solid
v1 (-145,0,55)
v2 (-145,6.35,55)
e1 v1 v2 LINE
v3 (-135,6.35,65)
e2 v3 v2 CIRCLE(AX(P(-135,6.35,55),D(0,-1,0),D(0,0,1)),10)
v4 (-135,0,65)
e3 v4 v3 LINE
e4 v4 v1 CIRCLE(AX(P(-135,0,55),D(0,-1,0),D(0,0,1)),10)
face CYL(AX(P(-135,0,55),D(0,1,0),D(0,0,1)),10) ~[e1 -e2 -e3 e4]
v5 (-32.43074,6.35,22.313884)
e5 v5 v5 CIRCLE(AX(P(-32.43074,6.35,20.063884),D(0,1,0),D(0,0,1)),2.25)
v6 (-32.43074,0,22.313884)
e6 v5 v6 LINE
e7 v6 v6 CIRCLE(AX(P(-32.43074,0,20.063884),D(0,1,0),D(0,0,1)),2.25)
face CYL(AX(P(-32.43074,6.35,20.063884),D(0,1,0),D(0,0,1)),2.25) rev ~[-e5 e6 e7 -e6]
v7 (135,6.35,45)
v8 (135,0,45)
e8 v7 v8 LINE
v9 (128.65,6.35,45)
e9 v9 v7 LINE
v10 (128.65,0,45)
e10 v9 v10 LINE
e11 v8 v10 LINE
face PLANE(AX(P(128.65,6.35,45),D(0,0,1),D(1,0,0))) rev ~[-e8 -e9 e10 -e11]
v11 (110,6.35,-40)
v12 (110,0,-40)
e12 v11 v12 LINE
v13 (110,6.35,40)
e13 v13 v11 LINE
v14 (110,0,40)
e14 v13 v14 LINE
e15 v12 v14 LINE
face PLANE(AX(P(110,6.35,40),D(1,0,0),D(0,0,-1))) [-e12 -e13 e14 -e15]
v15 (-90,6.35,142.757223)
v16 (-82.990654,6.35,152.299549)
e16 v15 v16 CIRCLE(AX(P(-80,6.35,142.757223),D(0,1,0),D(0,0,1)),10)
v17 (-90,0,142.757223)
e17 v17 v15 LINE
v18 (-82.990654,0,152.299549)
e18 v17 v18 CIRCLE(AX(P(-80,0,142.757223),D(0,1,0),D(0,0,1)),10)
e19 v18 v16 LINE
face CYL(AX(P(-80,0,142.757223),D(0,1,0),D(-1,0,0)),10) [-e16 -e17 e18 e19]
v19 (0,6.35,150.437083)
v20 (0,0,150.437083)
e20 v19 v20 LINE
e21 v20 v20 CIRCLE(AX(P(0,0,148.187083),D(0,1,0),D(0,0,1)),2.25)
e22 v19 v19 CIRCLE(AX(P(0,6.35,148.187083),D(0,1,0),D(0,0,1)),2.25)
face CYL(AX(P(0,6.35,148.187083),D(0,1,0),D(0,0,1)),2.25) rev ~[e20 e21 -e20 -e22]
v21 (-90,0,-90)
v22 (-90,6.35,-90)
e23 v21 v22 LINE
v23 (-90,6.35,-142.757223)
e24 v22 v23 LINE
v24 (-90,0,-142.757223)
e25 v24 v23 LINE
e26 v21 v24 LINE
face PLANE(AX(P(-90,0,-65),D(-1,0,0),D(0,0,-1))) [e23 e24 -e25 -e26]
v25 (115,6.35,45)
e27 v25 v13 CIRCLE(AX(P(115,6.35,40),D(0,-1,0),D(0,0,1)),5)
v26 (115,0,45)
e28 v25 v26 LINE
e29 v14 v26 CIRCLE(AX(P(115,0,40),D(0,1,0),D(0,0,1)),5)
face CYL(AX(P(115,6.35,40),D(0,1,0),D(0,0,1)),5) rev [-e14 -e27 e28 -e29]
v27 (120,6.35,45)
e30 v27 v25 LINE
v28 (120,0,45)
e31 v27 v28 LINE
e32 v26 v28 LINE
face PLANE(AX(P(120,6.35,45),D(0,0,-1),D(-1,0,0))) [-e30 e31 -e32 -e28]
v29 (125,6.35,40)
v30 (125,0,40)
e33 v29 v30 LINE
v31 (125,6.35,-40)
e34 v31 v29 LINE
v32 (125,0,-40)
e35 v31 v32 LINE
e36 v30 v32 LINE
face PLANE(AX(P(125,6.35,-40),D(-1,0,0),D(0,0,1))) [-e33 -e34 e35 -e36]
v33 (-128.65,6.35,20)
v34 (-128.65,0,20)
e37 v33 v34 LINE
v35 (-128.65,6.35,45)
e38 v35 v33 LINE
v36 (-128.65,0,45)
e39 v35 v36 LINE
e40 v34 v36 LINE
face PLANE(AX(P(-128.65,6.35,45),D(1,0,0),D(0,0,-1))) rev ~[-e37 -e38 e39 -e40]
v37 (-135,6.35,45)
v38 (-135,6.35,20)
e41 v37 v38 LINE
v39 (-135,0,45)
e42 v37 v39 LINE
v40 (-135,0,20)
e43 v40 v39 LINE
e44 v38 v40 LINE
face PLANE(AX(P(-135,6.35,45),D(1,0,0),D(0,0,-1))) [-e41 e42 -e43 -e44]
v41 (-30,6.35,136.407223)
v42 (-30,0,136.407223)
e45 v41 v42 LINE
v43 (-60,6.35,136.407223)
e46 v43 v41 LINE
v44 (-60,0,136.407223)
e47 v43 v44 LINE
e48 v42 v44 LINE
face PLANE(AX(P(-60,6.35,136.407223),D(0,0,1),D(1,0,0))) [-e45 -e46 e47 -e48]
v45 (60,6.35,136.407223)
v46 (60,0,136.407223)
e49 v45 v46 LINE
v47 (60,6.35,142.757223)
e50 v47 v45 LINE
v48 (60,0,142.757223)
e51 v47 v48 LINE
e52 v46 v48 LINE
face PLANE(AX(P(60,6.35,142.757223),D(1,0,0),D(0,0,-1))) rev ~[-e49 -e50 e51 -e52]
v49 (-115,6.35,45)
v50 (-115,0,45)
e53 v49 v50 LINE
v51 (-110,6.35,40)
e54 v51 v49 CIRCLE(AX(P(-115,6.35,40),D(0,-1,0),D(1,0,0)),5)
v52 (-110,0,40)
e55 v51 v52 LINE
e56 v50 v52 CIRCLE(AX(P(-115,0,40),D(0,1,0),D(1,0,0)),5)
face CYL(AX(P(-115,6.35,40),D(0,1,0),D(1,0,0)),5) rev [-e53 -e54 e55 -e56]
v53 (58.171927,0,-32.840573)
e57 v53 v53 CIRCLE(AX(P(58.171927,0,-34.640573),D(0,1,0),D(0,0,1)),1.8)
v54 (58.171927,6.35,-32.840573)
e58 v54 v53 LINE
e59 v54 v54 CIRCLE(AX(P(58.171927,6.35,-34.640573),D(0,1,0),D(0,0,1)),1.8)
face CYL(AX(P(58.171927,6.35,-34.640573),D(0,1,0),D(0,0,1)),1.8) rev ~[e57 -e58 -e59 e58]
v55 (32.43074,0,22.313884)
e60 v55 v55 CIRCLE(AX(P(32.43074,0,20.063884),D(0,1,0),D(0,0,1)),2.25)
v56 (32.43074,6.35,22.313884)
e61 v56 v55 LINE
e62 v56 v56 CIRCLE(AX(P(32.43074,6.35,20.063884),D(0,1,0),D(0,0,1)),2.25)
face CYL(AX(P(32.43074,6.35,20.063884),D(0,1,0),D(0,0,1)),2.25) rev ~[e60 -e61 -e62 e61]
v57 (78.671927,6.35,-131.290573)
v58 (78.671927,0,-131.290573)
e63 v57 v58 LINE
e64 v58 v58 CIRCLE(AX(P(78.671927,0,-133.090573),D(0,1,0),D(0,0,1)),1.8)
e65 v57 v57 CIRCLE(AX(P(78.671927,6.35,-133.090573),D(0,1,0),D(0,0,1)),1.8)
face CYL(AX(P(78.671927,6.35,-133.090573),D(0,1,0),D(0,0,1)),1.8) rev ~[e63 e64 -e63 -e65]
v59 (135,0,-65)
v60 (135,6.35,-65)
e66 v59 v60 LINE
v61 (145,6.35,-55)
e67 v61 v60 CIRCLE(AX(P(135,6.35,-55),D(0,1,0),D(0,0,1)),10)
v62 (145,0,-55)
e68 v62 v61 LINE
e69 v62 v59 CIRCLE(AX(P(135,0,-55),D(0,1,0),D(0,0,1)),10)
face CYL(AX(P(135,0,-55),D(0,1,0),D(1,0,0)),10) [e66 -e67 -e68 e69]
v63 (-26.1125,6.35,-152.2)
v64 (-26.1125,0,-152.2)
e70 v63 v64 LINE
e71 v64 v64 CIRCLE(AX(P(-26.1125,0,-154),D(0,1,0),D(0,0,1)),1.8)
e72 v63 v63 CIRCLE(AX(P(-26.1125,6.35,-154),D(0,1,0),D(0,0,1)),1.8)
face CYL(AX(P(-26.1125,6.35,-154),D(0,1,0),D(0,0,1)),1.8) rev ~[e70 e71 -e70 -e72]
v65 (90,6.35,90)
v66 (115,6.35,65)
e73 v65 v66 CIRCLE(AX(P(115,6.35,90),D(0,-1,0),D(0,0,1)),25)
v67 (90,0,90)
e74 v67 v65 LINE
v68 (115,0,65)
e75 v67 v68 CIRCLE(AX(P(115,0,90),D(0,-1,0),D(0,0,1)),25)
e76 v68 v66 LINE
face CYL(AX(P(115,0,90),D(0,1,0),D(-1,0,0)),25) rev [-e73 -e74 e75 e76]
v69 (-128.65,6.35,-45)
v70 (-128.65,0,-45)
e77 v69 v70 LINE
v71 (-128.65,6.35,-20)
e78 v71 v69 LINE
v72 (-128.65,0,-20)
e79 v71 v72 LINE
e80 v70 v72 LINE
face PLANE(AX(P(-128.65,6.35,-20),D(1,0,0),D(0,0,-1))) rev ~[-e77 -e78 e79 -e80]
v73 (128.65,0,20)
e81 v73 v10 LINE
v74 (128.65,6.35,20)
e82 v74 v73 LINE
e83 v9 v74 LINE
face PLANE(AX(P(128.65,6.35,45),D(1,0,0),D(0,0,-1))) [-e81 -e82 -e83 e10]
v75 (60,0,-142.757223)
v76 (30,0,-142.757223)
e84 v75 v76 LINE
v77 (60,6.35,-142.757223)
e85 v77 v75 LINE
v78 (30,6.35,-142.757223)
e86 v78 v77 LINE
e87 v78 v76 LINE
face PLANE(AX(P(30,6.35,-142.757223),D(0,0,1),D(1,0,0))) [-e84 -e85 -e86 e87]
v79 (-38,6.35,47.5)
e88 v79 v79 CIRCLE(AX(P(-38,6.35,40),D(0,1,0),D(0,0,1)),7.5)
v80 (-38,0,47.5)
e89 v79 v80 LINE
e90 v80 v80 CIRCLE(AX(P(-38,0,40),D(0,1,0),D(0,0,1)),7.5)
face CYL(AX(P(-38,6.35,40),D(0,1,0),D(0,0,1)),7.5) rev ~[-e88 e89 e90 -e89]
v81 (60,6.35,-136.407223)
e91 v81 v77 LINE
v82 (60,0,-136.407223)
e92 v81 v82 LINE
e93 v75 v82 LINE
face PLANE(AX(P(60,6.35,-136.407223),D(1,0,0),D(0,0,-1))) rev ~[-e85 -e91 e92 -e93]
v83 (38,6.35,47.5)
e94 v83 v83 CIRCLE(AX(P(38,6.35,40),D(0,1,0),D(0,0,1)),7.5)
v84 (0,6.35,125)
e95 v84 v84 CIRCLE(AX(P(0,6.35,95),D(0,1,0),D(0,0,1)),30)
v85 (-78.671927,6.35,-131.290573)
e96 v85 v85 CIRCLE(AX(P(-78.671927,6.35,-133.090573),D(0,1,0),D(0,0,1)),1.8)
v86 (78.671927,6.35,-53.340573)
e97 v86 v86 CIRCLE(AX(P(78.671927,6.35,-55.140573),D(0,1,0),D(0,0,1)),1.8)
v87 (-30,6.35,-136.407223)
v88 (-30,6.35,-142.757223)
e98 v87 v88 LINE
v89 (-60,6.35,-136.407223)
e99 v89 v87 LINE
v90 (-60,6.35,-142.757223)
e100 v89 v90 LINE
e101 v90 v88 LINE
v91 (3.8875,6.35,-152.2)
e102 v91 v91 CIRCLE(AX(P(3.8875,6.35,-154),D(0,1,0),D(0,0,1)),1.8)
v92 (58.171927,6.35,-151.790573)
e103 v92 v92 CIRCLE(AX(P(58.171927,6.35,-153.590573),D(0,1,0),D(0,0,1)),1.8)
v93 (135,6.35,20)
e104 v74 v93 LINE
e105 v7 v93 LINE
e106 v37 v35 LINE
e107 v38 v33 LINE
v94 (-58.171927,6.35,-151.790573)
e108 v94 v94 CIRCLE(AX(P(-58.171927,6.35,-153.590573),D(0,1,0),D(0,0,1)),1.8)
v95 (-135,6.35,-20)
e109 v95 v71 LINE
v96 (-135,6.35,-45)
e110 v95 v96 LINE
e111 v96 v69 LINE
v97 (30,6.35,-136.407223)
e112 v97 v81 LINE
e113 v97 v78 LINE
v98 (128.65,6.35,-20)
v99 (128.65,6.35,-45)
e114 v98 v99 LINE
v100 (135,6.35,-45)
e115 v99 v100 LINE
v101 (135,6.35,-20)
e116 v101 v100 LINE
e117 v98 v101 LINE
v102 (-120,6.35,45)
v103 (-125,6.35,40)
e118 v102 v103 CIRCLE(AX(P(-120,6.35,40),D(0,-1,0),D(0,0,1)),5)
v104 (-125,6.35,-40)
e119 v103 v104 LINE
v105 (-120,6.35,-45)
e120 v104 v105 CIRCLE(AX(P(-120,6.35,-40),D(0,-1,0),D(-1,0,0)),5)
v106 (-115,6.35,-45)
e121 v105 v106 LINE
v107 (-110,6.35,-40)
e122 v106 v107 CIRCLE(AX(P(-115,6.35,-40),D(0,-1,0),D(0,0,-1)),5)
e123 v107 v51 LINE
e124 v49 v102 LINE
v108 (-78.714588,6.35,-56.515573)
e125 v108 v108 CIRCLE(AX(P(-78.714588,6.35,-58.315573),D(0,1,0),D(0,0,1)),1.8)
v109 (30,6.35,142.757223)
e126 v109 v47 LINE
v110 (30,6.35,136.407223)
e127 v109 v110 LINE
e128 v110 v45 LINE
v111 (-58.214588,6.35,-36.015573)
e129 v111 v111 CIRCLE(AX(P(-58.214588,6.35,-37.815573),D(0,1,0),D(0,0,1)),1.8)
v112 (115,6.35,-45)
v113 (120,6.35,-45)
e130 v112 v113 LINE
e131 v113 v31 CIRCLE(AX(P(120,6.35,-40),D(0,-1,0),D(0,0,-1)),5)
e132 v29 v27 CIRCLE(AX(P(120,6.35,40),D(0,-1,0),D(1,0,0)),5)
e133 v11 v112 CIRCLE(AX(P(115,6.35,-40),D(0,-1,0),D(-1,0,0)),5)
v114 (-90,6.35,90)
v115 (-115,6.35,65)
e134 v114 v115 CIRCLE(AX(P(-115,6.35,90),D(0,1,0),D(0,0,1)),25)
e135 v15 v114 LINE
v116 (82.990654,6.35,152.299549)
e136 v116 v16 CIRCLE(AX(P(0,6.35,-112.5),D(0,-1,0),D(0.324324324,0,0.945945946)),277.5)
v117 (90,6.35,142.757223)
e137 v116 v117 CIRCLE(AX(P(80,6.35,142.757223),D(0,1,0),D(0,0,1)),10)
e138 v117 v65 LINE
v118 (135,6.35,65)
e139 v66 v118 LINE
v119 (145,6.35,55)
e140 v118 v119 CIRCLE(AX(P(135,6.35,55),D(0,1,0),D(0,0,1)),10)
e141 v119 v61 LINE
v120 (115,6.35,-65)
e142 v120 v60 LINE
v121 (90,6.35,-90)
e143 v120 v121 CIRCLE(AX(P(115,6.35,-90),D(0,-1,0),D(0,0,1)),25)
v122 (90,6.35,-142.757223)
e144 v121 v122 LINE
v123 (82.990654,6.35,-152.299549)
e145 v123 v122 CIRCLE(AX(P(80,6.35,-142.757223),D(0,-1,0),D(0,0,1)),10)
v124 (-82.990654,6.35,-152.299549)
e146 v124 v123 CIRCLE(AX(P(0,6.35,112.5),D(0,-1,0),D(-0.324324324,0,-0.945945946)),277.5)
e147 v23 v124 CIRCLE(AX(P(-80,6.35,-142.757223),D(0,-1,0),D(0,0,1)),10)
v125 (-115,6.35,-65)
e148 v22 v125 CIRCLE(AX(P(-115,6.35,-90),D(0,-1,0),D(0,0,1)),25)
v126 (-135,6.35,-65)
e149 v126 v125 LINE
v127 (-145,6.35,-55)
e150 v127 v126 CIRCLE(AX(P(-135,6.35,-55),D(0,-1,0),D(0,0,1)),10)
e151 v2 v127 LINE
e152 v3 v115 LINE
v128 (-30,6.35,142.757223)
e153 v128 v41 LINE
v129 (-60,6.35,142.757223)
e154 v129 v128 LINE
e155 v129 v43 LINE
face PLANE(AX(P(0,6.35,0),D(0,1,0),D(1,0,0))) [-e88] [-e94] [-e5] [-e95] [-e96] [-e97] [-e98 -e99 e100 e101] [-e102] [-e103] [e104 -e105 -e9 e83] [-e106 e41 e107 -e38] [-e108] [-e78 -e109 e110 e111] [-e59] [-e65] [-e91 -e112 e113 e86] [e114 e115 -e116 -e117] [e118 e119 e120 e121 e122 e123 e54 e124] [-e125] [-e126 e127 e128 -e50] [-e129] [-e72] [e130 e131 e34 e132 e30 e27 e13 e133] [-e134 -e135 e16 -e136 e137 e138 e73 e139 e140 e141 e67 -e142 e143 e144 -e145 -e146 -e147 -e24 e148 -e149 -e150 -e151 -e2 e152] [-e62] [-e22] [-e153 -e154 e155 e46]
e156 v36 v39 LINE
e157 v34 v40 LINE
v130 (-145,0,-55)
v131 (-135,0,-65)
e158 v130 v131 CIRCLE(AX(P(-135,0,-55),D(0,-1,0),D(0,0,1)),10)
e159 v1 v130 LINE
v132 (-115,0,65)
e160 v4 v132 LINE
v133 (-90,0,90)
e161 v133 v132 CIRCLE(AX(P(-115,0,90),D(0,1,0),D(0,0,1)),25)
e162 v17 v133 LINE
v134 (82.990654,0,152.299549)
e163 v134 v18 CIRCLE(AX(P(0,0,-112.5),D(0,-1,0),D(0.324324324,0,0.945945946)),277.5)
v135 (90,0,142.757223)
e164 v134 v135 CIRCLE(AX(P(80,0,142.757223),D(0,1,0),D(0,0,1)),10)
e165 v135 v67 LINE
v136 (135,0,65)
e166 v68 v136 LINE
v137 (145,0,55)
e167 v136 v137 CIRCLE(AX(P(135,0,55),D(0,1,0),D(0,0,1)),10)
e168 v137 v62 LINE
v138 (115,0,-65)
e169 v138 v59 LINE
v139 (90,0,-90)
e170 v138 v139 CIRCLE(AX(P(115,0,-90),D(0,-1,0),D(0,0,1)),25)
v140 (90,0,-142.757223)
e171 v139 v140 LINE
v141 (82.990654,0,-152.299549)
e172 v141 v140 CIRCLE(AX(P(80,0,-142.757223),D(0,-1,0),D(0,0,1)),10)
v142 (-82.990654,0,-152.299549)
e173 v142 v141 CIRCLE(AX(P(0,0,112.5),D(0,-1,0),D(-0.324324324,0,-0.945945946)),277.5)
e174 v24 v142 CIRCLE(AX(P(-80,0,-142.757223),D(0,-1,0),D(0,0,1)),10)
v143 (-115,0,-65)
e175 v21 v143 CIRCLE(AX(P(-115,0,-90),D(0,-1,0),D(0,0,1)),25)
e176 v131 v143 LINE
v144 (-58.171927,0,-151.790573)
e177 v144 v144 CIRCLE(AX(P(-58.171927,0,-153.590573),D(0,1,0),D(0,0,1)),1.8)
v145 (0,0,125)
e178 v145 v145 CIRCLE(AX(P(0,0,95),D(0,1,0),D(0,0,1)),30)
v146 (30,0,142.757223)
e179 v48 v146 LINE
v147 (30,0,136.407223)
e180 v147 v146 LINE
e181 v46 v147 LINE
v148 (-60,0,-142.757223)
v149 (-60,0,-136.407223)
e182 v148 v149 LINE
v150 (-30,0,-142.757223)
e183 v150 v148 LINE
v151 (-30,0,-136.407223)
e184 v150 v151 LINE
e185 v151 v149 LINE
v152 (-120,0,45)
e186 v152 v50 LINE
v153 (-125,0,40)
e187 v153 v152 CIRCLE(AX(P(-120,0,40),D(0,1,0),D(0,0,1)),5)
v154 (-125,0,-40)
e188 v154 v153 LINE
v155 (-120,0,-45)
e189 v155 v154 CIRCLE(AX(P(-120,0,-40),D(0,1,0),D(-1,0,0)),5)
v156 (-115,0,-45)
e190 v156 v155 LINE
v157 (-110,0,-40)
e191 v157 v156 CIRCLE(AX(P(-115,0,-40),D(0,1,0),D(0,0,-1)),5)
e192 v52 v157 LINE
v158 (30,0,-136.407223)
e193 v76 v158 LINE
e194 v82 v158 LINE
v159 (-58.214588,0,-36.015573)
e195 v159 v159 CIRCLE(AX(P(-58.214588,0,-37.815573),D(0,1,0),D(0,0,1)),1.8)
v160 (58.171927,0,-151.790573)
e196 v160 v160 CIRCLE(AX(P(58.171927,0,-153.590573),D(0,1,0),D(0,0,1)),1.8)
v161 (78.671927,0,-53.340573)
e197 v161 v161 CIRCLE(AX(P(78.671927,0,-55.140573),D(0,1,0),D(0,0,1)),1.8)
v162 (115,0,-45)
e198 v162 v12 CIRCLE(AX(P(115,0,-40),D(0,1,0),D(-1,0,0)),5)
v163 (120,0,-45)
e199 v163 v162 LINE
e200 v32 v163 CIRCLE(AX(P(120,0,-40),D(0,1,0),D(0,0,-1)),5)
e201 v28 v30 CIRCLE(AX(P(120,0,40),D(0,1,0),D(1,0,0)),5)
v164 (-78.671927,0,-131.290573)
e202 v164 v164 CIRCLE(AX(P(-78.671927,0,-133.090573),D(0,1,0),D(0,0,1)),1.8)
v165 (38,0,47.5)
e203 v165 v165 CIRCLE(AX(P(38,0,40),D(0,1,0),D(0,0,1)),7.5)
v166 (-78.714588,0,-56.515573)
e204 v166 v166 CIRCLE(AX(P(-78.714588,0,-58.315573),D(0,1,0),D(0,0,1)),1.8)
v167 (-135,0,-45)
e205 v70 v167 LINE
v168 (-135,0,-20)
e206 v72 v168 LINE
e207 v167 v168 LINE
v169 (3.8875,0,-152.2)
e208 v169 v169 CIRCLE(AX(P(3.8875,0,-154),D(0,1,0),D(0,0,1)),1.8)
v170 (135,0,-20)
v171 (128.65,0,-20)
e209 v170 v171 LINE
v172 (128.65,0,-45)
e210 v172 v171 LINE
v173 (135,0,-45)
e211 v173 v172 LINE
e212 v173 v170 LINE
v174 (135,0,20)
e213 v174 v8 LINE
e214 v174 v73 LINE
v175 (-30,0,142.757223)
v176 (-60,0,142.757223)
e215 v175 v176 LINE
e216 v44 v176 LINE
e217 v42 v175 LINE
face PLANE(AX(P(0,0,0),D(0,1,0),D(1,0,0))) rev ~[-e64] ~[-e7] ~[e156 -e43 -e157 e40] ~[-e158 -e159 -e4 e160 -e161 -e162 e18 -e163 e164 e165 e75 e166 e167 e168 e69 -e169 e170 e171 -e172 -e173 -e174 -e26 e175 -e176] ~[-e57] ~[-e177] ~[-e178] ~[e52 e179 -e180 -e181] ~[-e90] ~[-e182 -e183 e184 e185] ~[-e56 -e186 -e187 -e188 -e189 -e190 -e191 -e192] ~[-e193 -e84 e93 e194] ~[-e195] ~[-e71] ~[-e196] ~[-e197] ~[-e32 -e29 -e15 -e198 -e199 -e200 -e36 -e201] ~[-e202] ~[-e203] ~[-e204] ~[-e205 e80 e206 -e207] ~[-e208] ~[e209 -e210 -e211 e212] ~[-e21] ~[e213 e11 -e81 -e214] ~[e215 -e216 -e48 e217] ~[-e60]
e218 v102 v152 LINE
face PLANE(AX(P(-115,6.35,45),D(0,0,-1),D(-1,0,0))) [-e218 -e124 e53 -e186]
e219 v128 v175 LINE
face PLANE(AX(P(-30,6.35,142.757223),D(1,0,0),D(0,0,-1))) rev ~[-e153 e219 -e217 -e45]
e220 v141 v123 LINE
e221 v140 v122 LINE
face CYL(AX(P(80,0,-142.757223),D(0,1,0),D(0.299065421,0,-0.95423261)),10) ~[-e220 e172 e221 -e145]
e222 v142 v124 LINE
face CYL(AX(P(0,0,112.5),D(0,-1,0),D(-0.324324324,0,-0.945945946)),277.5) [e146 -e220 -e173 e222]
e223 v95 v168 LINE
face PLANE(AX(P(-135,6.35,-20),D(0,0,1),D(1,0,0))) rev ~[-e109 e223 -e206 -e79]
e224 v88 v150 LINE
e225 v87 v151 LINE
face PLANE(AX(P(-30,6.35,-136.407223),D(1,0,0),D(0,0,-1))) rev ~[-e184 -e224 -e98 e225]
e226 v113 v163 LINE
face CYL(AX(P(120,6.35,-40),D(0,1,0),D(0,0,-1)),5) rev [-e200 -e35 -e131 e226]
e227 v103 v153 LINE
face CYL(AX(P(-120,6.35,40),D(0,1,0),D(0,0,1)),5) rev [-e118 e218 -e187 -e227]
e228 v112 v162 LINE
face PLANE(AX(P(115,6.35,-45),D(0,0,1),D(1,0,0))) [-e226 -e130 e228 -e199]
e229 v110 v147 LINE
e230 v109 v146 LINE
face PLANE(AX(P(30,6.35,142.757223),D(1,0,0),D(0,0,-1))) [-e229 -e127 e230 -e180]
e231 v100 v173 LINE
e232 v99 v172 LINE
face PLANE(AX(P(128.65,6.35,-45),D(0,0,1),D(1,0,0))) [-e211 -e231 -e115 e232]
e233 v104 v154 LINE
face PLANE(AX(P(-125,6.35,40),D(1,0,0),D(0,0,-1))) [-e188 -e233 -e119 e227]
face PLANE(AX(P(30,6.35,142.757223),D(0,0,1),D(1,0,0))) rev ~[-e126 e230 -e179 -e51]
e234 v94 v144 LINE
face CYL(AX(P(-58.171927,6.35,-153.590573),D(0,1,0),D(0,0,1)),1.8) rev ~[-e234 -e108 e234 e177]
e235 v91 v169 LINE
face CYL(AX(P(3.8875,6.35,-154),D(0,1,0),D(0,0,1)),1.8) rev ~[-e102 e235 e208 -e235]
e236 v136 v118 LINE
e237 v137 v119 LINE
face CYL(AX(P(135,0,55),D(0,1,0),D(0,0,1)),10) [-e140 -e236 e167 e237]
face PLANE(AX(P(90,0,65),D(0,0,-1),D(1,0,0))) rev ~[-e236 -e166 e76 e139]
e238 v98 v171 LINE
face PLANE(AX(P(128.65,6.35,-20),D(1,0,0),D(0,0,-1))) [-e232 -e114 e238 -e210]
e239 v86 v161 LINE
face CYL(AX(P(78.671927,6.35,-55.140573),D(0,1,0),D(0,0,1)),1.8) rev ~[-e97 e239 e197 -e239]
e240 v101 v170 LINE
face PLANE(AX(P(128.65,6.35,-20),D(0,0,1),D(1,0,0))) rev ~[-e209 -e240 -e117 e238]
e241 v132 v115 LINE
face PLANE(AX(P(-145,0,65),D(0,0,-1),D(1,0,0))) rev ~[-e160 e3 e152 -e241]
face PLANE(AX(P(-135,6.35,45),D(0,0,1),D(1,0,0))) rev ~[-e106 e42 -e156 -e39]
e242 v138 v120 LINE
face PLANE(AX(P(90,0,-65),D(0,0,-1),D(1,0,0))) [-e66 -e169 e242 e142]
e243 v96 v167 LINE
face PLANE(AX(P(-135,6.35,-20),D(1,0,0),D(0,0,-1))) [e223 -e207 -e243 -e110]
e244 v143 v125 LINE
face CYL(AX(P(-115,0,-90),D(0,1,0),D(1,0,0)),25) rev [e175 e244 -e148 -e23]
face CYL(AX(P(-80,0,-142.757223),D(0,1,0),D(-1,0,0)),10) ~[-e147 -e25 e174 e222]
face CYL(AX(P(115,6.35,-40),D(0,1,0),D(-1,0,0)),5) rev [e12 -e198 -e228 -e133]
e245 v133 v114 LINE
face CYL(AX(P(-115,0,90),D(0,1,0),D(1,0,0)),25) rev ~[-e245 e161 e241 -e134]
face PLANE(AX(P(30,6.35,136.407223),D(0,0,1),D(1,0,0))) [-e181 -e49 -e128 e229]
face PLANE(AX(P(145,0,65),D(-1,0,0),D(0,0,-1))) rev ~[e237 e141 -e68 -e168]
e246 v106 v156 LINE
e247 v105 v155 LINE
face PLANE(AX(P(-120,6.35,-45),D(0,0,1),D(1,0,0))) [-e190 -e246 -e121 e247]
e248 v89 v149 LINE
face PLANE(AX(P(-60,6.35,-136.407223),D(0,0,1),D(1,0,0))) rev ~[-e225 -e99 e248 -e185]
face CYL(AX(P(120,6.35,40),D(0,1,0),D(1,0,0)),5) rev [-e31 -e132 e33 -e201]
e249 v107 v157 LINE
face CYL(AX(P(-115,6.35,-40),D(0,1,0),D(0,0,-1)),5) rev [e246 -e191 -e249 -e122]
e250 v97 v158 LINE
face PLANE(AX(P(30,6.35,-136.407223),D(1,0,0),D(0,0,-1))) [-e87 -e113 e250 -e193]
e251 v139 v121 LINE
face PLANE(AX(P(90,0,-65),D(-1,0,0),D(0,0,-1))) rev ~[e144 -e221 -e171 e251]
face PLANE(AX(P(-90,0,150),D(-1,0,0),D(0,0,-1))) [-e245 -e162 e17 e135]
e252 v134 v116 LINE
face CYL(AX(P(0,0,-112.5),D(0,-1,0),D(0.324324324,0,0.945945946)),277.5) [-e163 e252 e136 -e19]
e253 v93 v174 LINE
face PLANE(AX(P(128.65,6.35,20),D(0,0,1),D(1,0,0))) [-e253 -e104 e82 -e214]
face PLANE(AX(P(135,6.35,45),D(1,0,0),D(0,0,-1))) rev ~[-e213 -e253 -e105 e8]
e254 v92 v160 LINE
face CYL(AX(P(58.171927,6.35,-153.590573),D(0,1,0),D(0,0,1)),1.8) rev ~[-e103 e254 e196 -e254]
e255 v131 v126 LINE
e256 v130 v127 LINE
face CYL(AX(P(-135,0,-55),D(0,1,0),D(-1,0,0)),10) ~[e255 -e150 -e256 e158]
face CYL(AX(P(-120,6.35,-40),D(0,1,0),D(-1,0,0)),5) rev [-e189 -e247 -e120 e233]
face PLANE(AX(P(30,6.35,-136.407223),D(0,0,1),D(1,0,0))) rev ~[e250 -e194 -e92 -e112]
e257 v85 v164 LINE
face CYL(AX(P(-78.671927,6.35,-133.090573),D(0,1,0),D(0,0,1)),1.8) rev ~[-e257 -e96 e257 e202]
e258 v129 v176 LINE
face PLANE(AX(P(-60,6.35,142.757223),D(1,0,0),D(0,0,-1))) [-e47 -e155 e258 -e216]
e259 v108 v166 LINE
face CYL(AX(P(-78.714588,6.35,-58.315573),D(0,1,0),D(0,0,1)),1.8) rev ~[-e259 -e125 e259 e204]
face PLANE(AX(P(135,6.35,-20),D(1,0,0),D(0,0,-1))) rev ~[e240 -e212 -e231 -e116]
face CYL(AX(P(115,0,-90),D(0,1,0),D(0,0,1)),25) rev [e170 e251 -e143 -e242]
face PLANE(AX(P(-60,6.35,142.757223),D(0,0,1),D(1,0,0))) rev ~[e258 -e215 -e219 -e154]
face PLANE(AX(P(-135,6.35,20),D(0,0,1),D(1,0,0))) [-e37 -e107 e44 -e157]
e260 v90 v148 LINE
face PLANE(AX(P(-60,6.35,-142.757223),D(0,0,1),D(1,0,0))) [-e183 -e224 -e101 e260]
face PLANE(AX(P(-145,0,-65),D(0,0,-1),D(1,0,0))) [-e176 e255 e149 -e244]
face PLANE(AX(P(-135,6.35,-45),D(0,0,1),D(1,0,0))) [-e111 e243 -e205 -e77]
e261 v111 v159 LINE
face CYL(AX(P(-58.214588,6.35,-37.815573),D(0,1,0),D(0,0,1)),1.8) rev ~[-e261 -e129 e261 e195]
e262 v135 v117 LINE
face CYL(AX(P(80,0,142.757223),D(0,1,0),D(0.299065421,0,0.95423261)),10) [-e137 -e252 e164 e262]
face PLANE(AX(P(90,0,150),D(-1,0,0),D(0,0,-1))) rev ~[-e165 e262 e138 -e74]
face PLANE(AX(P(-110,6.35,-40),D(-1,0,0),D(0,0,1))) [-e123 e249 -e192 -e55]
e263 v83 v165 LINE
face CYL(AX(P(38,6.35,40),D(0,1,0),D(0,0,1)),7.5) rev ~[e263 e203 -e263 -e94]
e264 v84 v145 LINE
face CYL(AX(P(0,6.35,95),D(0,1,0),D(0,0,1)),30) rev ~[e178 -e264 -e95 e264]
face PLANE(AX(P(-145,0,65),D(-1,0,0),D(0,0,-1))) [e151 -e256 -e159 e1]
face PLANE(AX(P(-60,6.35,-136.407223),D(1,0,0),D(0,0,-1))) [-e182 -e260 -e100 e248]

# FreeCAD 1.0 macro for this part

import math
import FreeCAD as App
import Part
import Sketcher

V = App.Vector


def edges_at(feature, points):
    """Names of the edges that pass closest to the given points."""
    edges = feature.Shape.Edges
    near = lambda p: min(range(len(edges)), key=lambda i: edges[i].distToShape(Part.Vertex(*p))[0])
    return sorted({f"Edge{near(p) + 1}" for p in points})

doc = App.newDocument("Part")
body = doc.addObject("PartDesign::Body", "Body")

sketch1 = body.newObject("Sketcher::SketchObject", "Sketch")
sketch1.AttachmentSupport = (doc.getObject("XZ_Plane"), [""])
sketch1.MapMode = "FlatFace"
sketch1.addGeometry([
    Part.LineSegment(V(-90, 65, 0), V(-90, 150, 0)),
    Part.ArcOfCircle(Part.Circle(V(0, -112, 0), V(0, 0, 1), 278), math.radians(71), math.radians(109)),
    Part.LineSegment(V(90, 150, 0), V(90, 65, 0)),
    Part.LineSegment(V(90, 65, 0), V(145, 65, 0)),
    Part.LineSegment(V(145, 65, 0), V(145, -65, 0)),
    Part.LineSegment(V(145, -65, 0), V(90, -65, 0)),
    Part.LineSegment(V(90, -65, 0), V(90, -150, 0)),
    Part.ArcOfCircle(Part.Circle(V(0, 112, 0), V(0, 0, 1), 278), math.radians(-109), math.radians(-71)),
    Part.LineSegment(V(-90, -150, 0), V(-90, -65, 0)),
    Part.LineSegment(V(-90, -65, 0), V(-145, -65, 0)),
    Part.LineSegment(V(-145, -65, 0), V(-145, 65, 0)),
    Part.LineSegment(V(-145, 65, 0), V(-90, 65, 0)),
], False)
sketch1.addConstraint([
    Sketcher.Constraint("Coincident", 0, 2, 1, 2),
    Sketcher.Constraint("Coincident", 1, 1, 2, 1),
    Sketcher.Constraint("Coincident", 2, 2, 3, 1),
    Sketcher.Constraint("Coincident", 3, 2, 4, 1),
    Sketcher.Constraint("Coincident", 4, 2, 5, 1),
    Sketcher.Constraint("Coincident", 5, 2, 6, 1),
    Sketcher.Constraint("Coincident", 6, 2, 7, 2),
    Sketcher.Constraint("Coincident", 7, 1, 8, 1),
    Sketcher.Constraint("Coincident", 8, 2, 9, 1),
    Sketcher.Constraint("Coincident", 9, 2, 10, 1),
    Sketcher.Constraint("Coincident", 10, 2, 11, 1),
    Sketcher.Constraint("Coincident", 11, 2, 0, 1),
    Sketcher.Constraint("Vertical", 0),
    Sketcher.Constraint("Vertical", 2),
    Sketcher.Constraint("Horizontal", 3),
    Sketcher.Constraint("Vertical", 4),
    Sketcher.Constraint("Horizontal", 5),
    Sketcher.Constraint("Vertical", 6),
    Sketcher.Constraint("Vertical", 8),
    Sketcher.Constraint("Horizontal", 9),
    Sketcher.Constraint("Vertical", 10),
    Sketcher.Constraint("Horizontal", 11),
    Sketcher.Constraint("Equal", 1, 7),
    Sketcher.Constraint("Symmetric", 1, 3, 7, 3, -1, 1),
    Sketcher.Constraint("Symmetric", 2, 2, 8, 2, -1, 1),
    Sketcher.Constraint("Symmetric", 4, 2, 10, 2, -1, 1),
    Sketcher.Constraint("Symmetric", 0, 2, 1, 1, -2),
    Sketcher.Constraint("Symmetric", 5, 2, 8, 2, -2),
    Sketcher.Constraint("Radius", 1, 277.5),
    Sketcher.Constraint("DistanceX", 3, 1, 3, 2, 55.0),
    Sketcher.Constraint("DistanceY", 0, 1, 0, 2, 85.0),
    Sketcher.Constraint("DistanceY", 4, 2, 4, 1, 130.0),
    Sketcher.Constraint("DistanceX", 0, 2, -1, 1, 90.0),
])
pad1 = body.newObject("PartDesign::Pad", "Pad")
pad1.Profile = sketch1
pad1.Length = 6.35
pad1.Reversed = True
doc.recompute()

fillet = body.newObject("PartDesign::Fillet", "Fillet")
fillet.Base = (pad1, edges_at(pad1, [
    (-90, 3.175, 65),
    (-90, 3.175, -65),
    (90, 3.175, -65),
    (90, 3.175, 65),
]))
fillet.Radius = 25
doc.recompute()

fillet2 = body.newObject("PartDesign::Fillet", "Fillet001")
fillet2.Base = (fillet, edges_at(fillet, [
    (-145, 3.175, 65),
    (-145, 3.175, -65),
    (-90, 3.175, -150),
    (90, 3.175, -150),
    (145, 3.175, -65),
    (145, 3.175, 65),
    (90, 3.175, 150),
    (-90, 3.175, 150),
]))
fillet2.Radius = 10

sketch2 = body.newObject("Sketcher::SketchObject", "Sketch001")
sketch2.AttachmentSupport = (doc.getObject("XZ_Plane"), [""])
sketch2.MapMode = "FlatFace"
sketch2.AttachmentOffset = App.Placement(V(0, 0, -6.35), App.Rotation())
sketch2.addGeometry(Part.Circle(V(0, 95, 0), V(0, 0, 1), 30), False)
sketch2.addConstraint([
    Sketcher.Constraint("PointOnObject", 0, 3, -2),
    Sketcher.Constraint("Diameter", 0, 60.0),
    Sketcher.Constraint("DistanceY", -1, 1, 0, 3, 95.0),
])
pocket1 = body.newObject("PartDesign::Pocket", "Pocket")
pocket1.Profile = sketch2
pocket1.Type = "UpToFirst"
pocket1.Reversed = True

sketch3 = body.newObject("Sketcher::SketchObject", "Sketch002")
sketch3.AttachmentSupport = (doc.getObject("XZ_Plane"), [""])
sketch3.MapMode = "FlatFace"
sketch3.AttachmentOffset = App.Placement(V(0, 0, -6.35), App.Rotation())
sketch3.addGeometry(Part.Circle(V(-32.4, 20.1, 0), V(0, 0, 1), 2.2), False)
sketch3.addConstraint([
    Sketcher.Constraint("Diameter", 0, 4.5),
    Sketcher.Constraint("DistanceX", 0, 3, -1, 1, 32.43074),
    Sketcher.Constraint("DistanceY", -1, 1, 0, 3, 20.063884),
])
pocket2 = body.newObject("PartDesign::Pocket", "Pocket001")
pocket2.Profile = sketch3
pocket2.Type = "UpToFirst"
pocket2.Reversed = True

sketch4 = body.newObject("Sketcher::SketchObject", "Sketch003")
sketch4.AttachmentSupport = (doc.getObject("XZ_Plane"), [""])
sketch4.MapMode = "FlatFace"
sketch4.AttachmentOffset = App.Placement(V(0, 0, -6.35), App.Rotation())
sketch4.addGeometry(Part.Circle(V(32.4, 20.1, 0), V(0, 0, 1), 2.2), False)
sketch4.addConstraint([
    Sketcher.Constraint("Diameter", 0, 4.5),
    Sketcher.Constraint("DistanceX", -1, 1, 0, 3, 32.43074),
    Sketcher.Constraint("DistanceY", -1, 1, 0, 3, 20.063884),
])
pocket3 = body.newObject("PartDesign::Pocket", "Pocket002")
pocket3.Profile = sketch4
pocket3.Type = "UpToFirst"
pocket3.Reversed = True

sketch5 = body.newObject("Sketcher::SketchObject", "Sketch004")
sketch5.AttachmentSupport = (doc.getObject("XZ_Plane"), [""])
sketch5.MapMode = "FlatFace"
sketch5.AttachmentOffset = App.Placement(V(0, 0, -6.35), App.Rotation())
sketch5.addGeometry(Part.Circle(V(0, 148.2, 0), V(0, 0, 1), 2.2), False)
sketch5.addConstraint([
    Sketcher.Constraint("PointOnObject", 0, 3, -2),
    Sketcher.Constraint("Diameter", 0, 4.5),
    Sketcher.Constraint("DistanceY", -1, 1, 0, 3, 148.187083),
])
pocket4 = body.newObject("PartDesign::Pocket", "Pocket003")
pocket4.Profile = sketch5
pocket4.Type = "UpToFirst"
pocket4.Reversed = True

sketch6 = body.newObject("Sketcher::SketchObject", "Sketch005")
sketch6.AttachmentSupport = (doc.getObject("XZ_Plane"), [""])
sketch6.MapMode = "FlatFace"
sketch6.AttachmentOffset = App.Placement(V(0, 0, -6.35), App.Rotation())
sketch6.addGeometry([
    Part.LineSegment(V(-60, -143, 0), V(-60, -136, 0)),
    Part.LineSegment(V(-60, -136, 0), V(-30, -136, 0)),
    Part.LineSegment(V(-30, -136, 0), V(-30, -143, 0)),
    Part.LineSegment(V(-30, -143, 0), V(-60, -143, 0)),
], False)
sketch6.addConstraint([
    Sketcher.Constraint("Coincident", 0, 2, 1, 1),
    Sketcher.Constraint("Coincident", 1, 2, 2, 1),
    Sketcher.Constraint("Coincident", 2, 2, 3, 1),
    Sketcher.Constraint("Coincident", 3, 2, 0, 1),
    Sketcher.Constraint("Vertical", 0),
    Sketcher.Constraint("Horizontal", 1),
    Sketcher.Constraint("Vertical", 2),
    Sketcher.Constraint("Horizontal", 3),
    Sketcher.Constraint("DistanceX", 1, 1, 1, 2, 30.0),
    Sketcher.Constraint("DistanceX", 0, 2, -1, 1, 60.0),
    Sketcher.Constraint("DistanceY", 0, 1, 0, 2, 6.35),
    Sketcher.Constraint("DistanceY", 0, 2, -1, 1, 136.407223),
])
pocket5 = body.newObject("PartDesign::Pocket", "Pocket004")
pocket5.Profile = sketch6
pocket5.Type = "UpToFirst"
pocket5.Reversed = True

sketch7 = body.newObject("Sketcher::SketchObject", "Sketch006")
sketch7.AttachmentSupport = (doc.getObject("XZ_Plane"), [""])
sketch7.MapMode = "FlatFace"
sketch7.AttachmentOffset = App.Placement(V(0, 0, -6.35), App.Rotation())
sketch7.addGeometry([
    Part.LineSegment(V(30, -143, 0), V(30, -136, 0)),
    Part.LineSegment(V(30, -136, 0), V(60, -136, 0)),
    Part.LineSegment(V(60, -136, 0), V(60, -143, 0)),
    Part.LineSegment(V(60, -143, 0), V(30, -143, 0)),
], False)
sketch7.addConstraint([
    Sketcher.Constraint("Coincident", 0, 2, 1, 1),
    Sketcher.Constraint("Coincident", 1, 2, 2, 1),
    Sketcher.Constraint("Coincident", 2, 2, 3, 1),
    Sketcher.Constraint("Coincident", 3, 2, 0, 1),
    Sketcher.Constraint("Vertical", 0),
    Sketcher.Constraint("Horizontal", 1),
    Sketcher.Constraint("Vertical", 2),
    Sketcher.Constraint("Horizontal", 3),
    Sketcher.Constraint("DistanceX", 1, 1, 1, 2, 30.0),
    Sketcher.Constraint("DistanceX", -1, 1, 0, 2, 30.0),
    Sketcher.Constraint("DistanceY", 0, 1, 0, 2, 6.35),
    Sketcher.Constraint("DistanceY", 0, 2, -1, 1, 136.407223),
])
pocket6 = body.newObject("PartDesign::Pocket", "Pocket005")
pocket6.Profile = sketch7
pocket6.Type = "UpToFirst"
pocket6.Reversed = True

sketch8 = body.newObject("Sketcher::SketchObject", "Sketch007")
sketch8.AttachmentSupport = (doc.getObject("XZ_Plane"), [""])
sketch8.MapMode = "FlatFace"
sketch8.AttachmentOffset = App.Placement(V(0, 0, -6.35), App.Rotation())
sketch8.addGeometry([
    Part.LineSegment(V(-60, 136, 0), V(-60, 143, 0)),
    Part.LineSegment(V(-60, 143, 0), V(-30, 143, 0)),
    Part.LineSegment(V(-30, 143, 0), V(-30, 136, 0)),
    Part.LineSegment(V(-30, 136, 0), V(-60, 136, 0)),
], False)
sketch8.addConstraint([
    Sketcher.Constraint("Coincident", 0, 2, 1, 1),
    Sketcher.Constraint("Coincident", 1, 2, 2, 1),
    Sketcher.Constraint("Coincident", 2, 2, 3, 1),
    Sketcher.Constraint("Coincident", 3, 2, 0, 1),
    Sketcher.Constraint("Vertical", 0),
    Sketcher.Constraint("Horizontal", 1),
    Sketcher.Constraint("Vertical", 2),
    Sketcher.Constraint("Horizontal", 3),
    Sketcher.Constraint("DistanceX", 1, 1, 1, 2, 30.0),
    Sketcher.Constraint("DistanceX", 0, 2, -1, 1, 60.0),
    Sketcher.Constraint("DistanceY", 0, 1, 0, 2, 6.35),
    Sketcher.Constraint("DistanceY", -1, 1, 0, 2, 142.757223),
])
pocket7 = body.newObject("PartDesign::Pocket", "Pocket006")
pocket7.Profile = sketch8
pocket7.Type = "UpToFirst"
pocket7.Reversed = True

sketch9 = body.newObject("Sketcher::SketchObject", "Sketch008")
sketch9.AttachmentSupport = (doc.getObject("XZ_Plane"), [""])
sketch9.MapMode = "FlatFace"
sketch9.AttachmentOffset = App.Placement(V(0, 0, -6.35), App.Rotation())
sketch9.addGeometry([
    Part.LineSegment(V(30, 136, 0), V(30, 143, 0)),
    Part.LineSegment(V(30, 143, 0), V(60, 143, 0)),
    Part.LineSegment(V(60, 143, 0), V(60, 136, 0)),
    Part.LineSegment(V(60, 136, 0), V(30, 136, 0)),
], False)
sketch9.addConstraint([
    Sketcher.Constraint("Coincident", 0, 2, 1, 1),
    Sketcher.Constraint("Coincident", 1, 2, 2, 1),
    Sketcher.Constraint("Coincident", 2, 2, 3, 1),
    Sketcher.Constraint("Coincident", 3, 2, 0, 1),
    Sketcher.Constraint("Vertical", 0),
    Sketcher.Constraint("Horizontal", 1),
    Sketcher.Constraint("Vertical", 2),
    Sketcher.Constraint("Horizontal", 3),
    Sketcher.Constraint("DistanceX", 1, 1, 1, 2, 30.0),
    Sketcher.Constraint("DistanceX", -1, 1, 0, 2, 30.0),
    Sketcher.Constraint("DistanceY", 0, 1, 0, 2, 6.35),
    Sketcher.Constraint("DistanceY", -1, 1, 0, 2, 142.757223),
])
pocket8 = body.newObject("PartDesign::Pocket", "Pocket007")
pocket8.Profile = sketch9
pocket8.Type = "UpToFirst"
pocket8.Reversed = True

sketch10 = body.newObject("Sketcher::SketchObject", "Sketch009")
sketch10.AttachmentSupport = (doc.getObject("XZ_Plane"), [""])
sketch10.MapMode = "FlatFace"
sketch10.AttachmentOffset = App.Placement(V(0, 0, -6.35), App.Rotation())
sketch10.addGeometry([
    Part.LineSegment(V(129, 20, 0), V(129, 45, 0)),
    Part.LineSegment(V(129, 45, 0), V(135, 45, 0)),
    Part.LineSegment(V(135, 45, 0), V(135, 20, 0)),
    Part.LineSegment(V(135, 20, 0), V(129, 20, 0)),
], False)
sketch10.addConstraint([
    Sketcher.Constraint("Coincident", 0, 2, 1, 1),
    Sketcher.Constraint("Coincident", 1, 2, 2, 1),
    Sketcher.Constraint("Coincident", 2, 2, 3, 1),
    Sketcher.Constraint("Coincident", 3, 2, 0, 1),
    Sketcher.Constraint("Vertical", 0),
    Sketcher.Constraint("Horizontal", 1),
    Sketcher.Constraint("Vertical", 2),
    Sketcher.Constraint("Horizontal", 3),
    Sketcher.Constraint("DistanceY", 0, 1, 0, 2, 25.0),
    Sketcher.Constraint("DistanceY", -1, 1, 0, 2, 45.0),
    Sketcher.Constraint("DistanceX", -1, 1, 1, 2, 135.0),
    Sketcher.Constraint("DistanceX", 1, 1, 1, 2, 6.35),
])
pocket9 = body.newObject("PartDesign::Pocket", "Pocket008")
pocket9.Profile = sketch10
pocket9.Type = "UpToFirst"
pocket9.Reversed = True

sketch11 = body.newObject("Sketcher::SketchObject", "Sketch010")
sketch11.AttachmentSupport = (doc.getObject("XZ_Plane"), [""])
sketch11.MapMode = "FlatFace"
sketch11.AttachmentOffset = App.Placement(V(0, 0, -6.35), App.Rotation())
sketch11.addGeometry([
    Part.LineSegment(V(129, -45, 0), V(129, -20, 0)),
    Part.LineSegment(V(129, -20, 0), V(135, -20, 0)),
    Part.LineSegment(V(135, -20, 0), V(135, -45, 0)),
    Part.LineSegment(V(135, -45, 0), V(129, -45, 0)),
], False)
sketch11.addConstraint([
    Sketcher.Constraint("Coincident", 0, 2, 1, 1),
    Sketcher.Constraint("Coincident", 1, 2, 2, 1),
    Sketcher.Constraint("Coincident", 2, 2, 3, 1),
    Sketcher.Constraint("Coincident", 3, 2, 0, 1),
    Sketcher.Constraint("Vertical", 0),
    Sketcher.Constraint("Horizontal", 1),
    Sketcher.Constraint("Vertical", 2),
    Sketcher.Constraint("Horizontal", 3),
    Sketcher.Constraint("DistanceY", 0, 1, 0, 2, 25.0),
    Sketcher.Constraint("DistanceY", 0, 2, -1, 1, 20.0),
    Sketcher.Constraint("DistanceX", -1, 1, 1, 2, 135.0),
    Sketcher.Constraint("DistanceX", 1, 1, 1, 2, 6.35),
])
pocket10 = body.newObject("PartDesign::Pocket", "Pocket009")
pocket10.Profile = sketch11
pocket10.Type = "UpToFirst"
pocket10.Reversed = True

sketch12 = body.newObject("Sketcher::SketchObject", "Sketch011")
sketch12.AttachmentSupport = (doc.getObject("XZ_Plane"), [""])
sketch12.MapMode = "FlatFace"
sketch12.AttachmentOffset = App.Placement(V(0, 0, -6.35), App.Rotation())
sketch12.addGeometry([
    Part.LineSegment(V(-135, -45, 0), V(-135, -20, 0)),
    Part.LineSegment(V(-135, -20, 0), V(-129, -20, 0)),
    Part.LineSegment(V(-129, -20, 0), V(-129, -45, 0)),
    Part.LineSegment(V(-129, -45, 0), V(-135, -45, 0)),
], False)
sketch12.addConstraint([
    Sketcher.Constraint("Coincident", 0, 2, 1, 1),
    Sketcher.Constraint("Coincident", 1, 2, 2, 1),
    Sketcher.Constraint("Coincident", 2, 2, 3, 1),
    Sketcher.Constraint("Coincident", 3, 2, 0, 1),
    Sketcher.Constraint("Vertical", 0),
    Sketcher.Constraint("Horizontal", 1),
    Sketcher.Constraint("Vertical", 2),
    Sketcher.Constraint("Horizontal", 3),
    Sketcher.Constraint("DistanceY", 0, 1, 0, 2, 25.0),
    Sketcher.Constraint("DistanceX", 0, 2, -1, 1, 135.0),
    Sketcher.Constraint("DistanceY", 0, 2, -1, 1, 20.0),
    Sketcher.Constraint("DistanceX", 1, 1, 1, 2, 6.35),
])
pocket11 = body.newObject("PartDesign::Pocket", "Pocket010")
pocket11.Profile = sketch12
pocket11.Type = "UpToFirst"
pocket11.Reversed = True

sketch13 = body.newObject("Sketcher::SketchObject", "Sketch012")
sketch13.AttachmentSupport = (doc.getObject("XZ_Plane"), [""])
sketch13.MapMode = "FlatFace"
sketch13.AttachmentOffset = App.Placement(V(0, 0, -6.35), App.Rotation())
sketch13.addGeometry([
    Part.LineSegment(V(-135, 20, 0), V(-135, 45, 0)),
    Part.LineSegment(V(-135, 45, 0), V(-129, 45, 0)),
    Part.LineSegment(V(-129, 45, 0), V(-129, 20, 0)),
    Part.LineSegment(V(-129, 20, 0), V(-135, 20, 0)),
], False)
sketch13.addConstraint([
    Sketcher.Constraint("Coincident", 0, 2, 1, 1),
    Sketcher.Constraint("Coincident", 1, 2, 2, 1),
    Sketcher.Constraint("Coincident", 2, 2, 3, 1),
    Sketcher.Constraint("Coincident", 3, 2, 0, 1),
    Sketcher.Constraint("Vertical", 0),
    Sketcher.Constraint("Horizontal", 1),
    Sketcher.Constraint("Vertical", 2),
    Sketcher.Constraint("Horizontal", 3),
    Sketcher.Constraint("DistanceY", 0, 1, 0, 2, 25.0),
    Sketcher.Constraint("DistanceX", 0, 2, -1, 1, 135.0),
    Sketcher.Constraint("DistanceY", -1, 1, 0, 2, 45.0),
    Sketcher.Constraint("DistanceX", 1, 1, 1, 2, 6.35),
])
pocket12 = body.newObject("PartDesign::Pocket", "Pocket011")
pocket12.Profile = sketch13
pocket12.Type = "UpToFirst"
pocket12.Reversed = True

sketch14 = body.newObject("Sketcher::SketchObject", "Sketch013")
sketch14.AttachmentSupport = (doc.getObject("XZ_Plane"), [""])
sketch14.MapMode = "FlatFace"
sketch14.AttachmentOffset = App.Placement(V(0, 0, -6.35), App.Rotation())
sketch14.addGeometry(Part.Circle(V(38, 40, 0), V(0, 0, 1), 8), False)
sketch14.addConstraint([
    Sketcher.Constraint("Diameter", 0, 15.0),
    Sketcher.Constraint("DistanceX", -1, 1, 0, 3, 38.0),
    Sketcher.Constraint("DistanceY", -1, 1, 0, 3, 40.0),
])
pocket13 = body.newObject("PartDesign::Pocket", "Pocket012")
pocket13.Profile = sketch14
pocket13.Type = "UpToFirst"
pocket13.Reversed = True

sketch15 = body.newObject("Sketcher::SketchObject", "Sketch014")
sketch15.AttachmentSupport = (doc.getObject("XZ_Plane"), [""])
sketch15.MapMode = "FlatFace"
sketch15.AttachmentOffset = App.Placement(V(0, 0, -6.35), App.Rotation())
sketch15.addGeometry(Part.Circle(V(-38, 40, 0), V(0, 0, 1), 8), False)
sketch15.addConstraint([
    Sketcher.Constraint("Diameter", 0, 15.0),
    Sketcher.Constraint("DistanceX", 0, 3, -1, 1, 38.0),
    Sketcher.Constraint("DistanceY", -1, 1, 0, 3, 40.0),
])
pocket14 = body.newObject("PartDesign::Pocket", "Pocket013")
pocket14.Profile = sketch15
pocket14.Type = "UpToFirst"
pocket14.Reversed = True

sketch16 = body.newObject("Sketcher::SketchObject", "Sketch015")
sketch16.AttachmentSupport = (doc.getObject("XZ_Plane"), [""])
sketch16.MapMode = "FlatFace"
sketch16.AttachmentOffset = App.Placement(V(0, 0, -6.35), App.Rotation())
sketch16.addGeometry([
    Part.LineSegment(V(-115, -45, 0), V(-120, -45, 0)),
    Part.ArcOfCircle(Part.Circle(V(-120, -40, 0), V(0, 0, 1), 5), math.radians(180), math.radians(270)),
    Part.LineSegment(V(-125, -40, 0), V(-125, 40, 0)),
    Part.ArcOfCircle(Part.Circle(V(-120, 40, 0), V(0, 0, 1), 5), math.radians(90), math.radians(180)),
    Part.LineSegment(V(-120, 45, 0), V(-115, 45, 0)),
    Part.ArcOfCircle(Part.Circle(V(-115, 40, 0), V(0, 0, 1), 5), math.radians(0), math.radians(90)),
    Part.LineSegment(V(-110, 40, 0), V(-110, -40, 0)),
    Part.ArcOfCircle(Part.Circle(V(-115, -40, 0), V(0, 0, 1), 5), math.radians(-90), math.radians(0)),
], False)
sketch16.addConstraint([
    Sketcher.Constraint("Tangent", 0, 2, 1, 2),
    Sketcher.Constraint("Tangent", 1, 1, 2, 1),
    Sketcher.Constraint("Tangent", 2, 2, 3, 2),
    Sketcher.Constraint("Tangent", 3, 1, 4, 1),
    Sketcher.Constraint("Tangent", 4, 2, 5, 2),
    Sketcher.Constraint("Tangent", 5, 1, 6, 1),
    Sketcher.Constraint("Tangent", 6, 2, 7, 2),
    Sketcher.Constraint("Tangent", 7, 1, 0, 1),
    Sketcher.Constraint("Horizontal", 0),
    Sketcher.Constraint("Vertical", 2),
    Sketcher.Constraint("Horizontal", 4),
    Sketcher.Constraint("Vertical", 6),
    Sketcher.Constraint("Equal", 1, 3),
    Sketcher.Constraint("Equal", 3, 5),
    Sketcher.Constraint("Equal", 5, 7),
    Sketcher.Constraint("Radius", 1, 5.0),
    Sketcher.Constraint("DistanceX", 0, 2, 0, 1, 5.0),
    Sketcher.Constraint("DistanceY", 2, 1, 2, 2, 80.0),
    Sketcher.Constraint("DistanceX", 1, 3, -1, 1, 120.0),
    Sketcher.Constraint("DistanceY", 1, 3, -1, 1, 40.0),
])
pocket15 = body.newObject("PartDesign::Pocket", "Pocket014")
pocket15.Profile = sketch16
pocket15.Type = "UpToFirst"
pocket15.Reversed = True

sketch17 = body.newObject("Sketcher::SketchObject", "Sketch016")
sketch17.AttachmentSupport = (doc.getObject("XZ_Plane"), [""])
sketch17.MapMode = "FlatFace"
sketch17.AttachmentOffset = App.Placement(V(0, 0, -6.35), App.Rotation())
sketch17.addGeometry([
    Part.LineSegment(V(115, 45, 0), V(120, 45, 0)),
    Part.ArcOfCircle(Part.Circle(V(120, 40, 0), V(0, 0, 1), 5), math.radians(0), math.radians(90)),
    Part.LineSegment(V(125, 40, 0), V(125, -40, 0)),
    Part.ArcOfCircle(Part.Circle(V(120, -40, 0), V(0, 0, 1), 5), math.radians(-90), math.radians(0)),
    Part.LineSegment(V(120, -45, 0), V(115, -45, 0)),
    Part.ArcOfCircle(Part.Circle(V(115, -40, 0), V(0, 0, 1), 5), math.radians(180), math.radians(270)),
    Part.LineSegment(V(110, -40, 0), V(110, 40, 0)),
    Part.ArcOfCircle(Part.Circle(V(115, 40, 0), V(0, 0, 1), 5), math.radians(90), math.radians(180)),
], False)
sketch17.addConstraint([
    Sketcher.Constraint("Tangent", 0, 2, 1, 2),
    Sketcher.Constraint("Tangent", 1, 1, 2, 1),
    Sketcher.Constraint("Tangent", 2, 2, 3, 2),
    Sketcher.Constraint("Tangent", 3, 1, 4, 1),
    Sketcher.Constraint("Tangent", 4, 2, 5, 2),
    Sketcher.Constraint("Tangent", 5, 1, 6, 1),
    Sketcher.Constraint("Tangent", 6, 2, 7, 2),
    Sketcher.Constraint("Tangent", 7, 1, 0, 1),
    Sketcher.Constraint("Horizontal", 0),
    Sketcher.Constraint("Vertical", 2),
    Sketcher.Constraint("Horizontal", 4),
    Sketcher.Constraint("Vertical", 6),
    Sketcher.Constraint("Equal", 1, 3),
    Sketcher.Constraint("Equal", 3, 5),
    Sketcher.Constraint("Equal", 5, 7),
    Sketcher.Constraint("Radius", 1, 5.0),
    Sketcher.Constraint("DistanceX", 0, 1, 0, 2, 5.0),
    Sketcher.Constraint("DistanceY", 2, 2, 2, 1, 80.0),
    Sketcher.Constraint("DistanceX", -1, 1, 1, 3, 120.0),
    Sketcher.Constraint("DistanceY", -1, 1, 1, 3, 40.0),
])
pocket16 = body.newObject("PartDesign::Pocket", "Pocket015")
pocket16.Profile = sketch17
pocket16.Type = "UpToFirst"
pocket16.Reversed = True

sketch18 = body.newObject("Sketcher::SketchObject", "Sketch017")
sketch18.AttachmentSupport = (doc.getObject("XZ_Plane"), [""])
sketch18.MapMode = "FlatFace"
sketch18.AttachmentOffset = App.Placement(V(0, 0, -6.35), App.Rotation())
sketch18.addGeometry(Part.Circle(V(-78.7, -58.3, 0), V(0, 0, 1), 1.8), False)
sketch18.addConstraint([
    Sketcher.Constraint("Diameter", 0, 3.6),
    Sketcher.Constraint("DistanceX", 0, 3, -1, 1, 78.714588),
    Sketcher.Constraint("DistanceY", 0, 3, -1, 1, 58.315573),
])
pocket17 = body.newObject("PartDesign::Pocket", "Pocket016")
pocket17.Profile = sketch18
pocket17.Type = "UpToFirst"
pocket17.Reversed = True

sketch19 = body.newObject("Sketcher::SketchObject", "Sketch018")
sketch19.AttachmentSupport = (doc.getObject("XZ_Plane"), [""])
sketch19.MapMode = "FlatFace"
sketch19.AttachmentOffset = App.Placement(V(0, 0, -6.35), App.Rotation())
sketch19.addGeometry(Part.Circle(V(-58.2, -37.8, 0), V(0, 0, 1), 1.8), False)
sketch19.addConstraint([
    Sketcher.Constraint("Diameter", 0, 3.6),
    Sketcher.Constraint("DistanceX", 0, 3, -1, 1, 58.214588),
    Sketcher.Constraint("DistanceY", 0, 3, -1, 1, 37.815573),
])
pocket18 = body.newObject("PartDesign::Pocket", "Pocket017")
pocket18.Profile = sketch19
pocket18.Type = "UpToFirst"
pocket18.Reversed = True

sketch20 = body.newObject("Sketcher::SketchObject", "Sketch019")
sketch20.AttachmentSupport = (doc.getObject("XZ_Plane"), [""])
sketch20.MapMode = "FlatFace"
sketch20.AttachmentOffset = App.Placement(V(0, 0, -6.35), App.Rotation())
sketch20.addGeometry(Part.Circle(V(58.2, -34.6, 0), V(0, 0, 1), 1.8), False)
sketch20.addConstraint([
    Sketcher.Constraint("Diameter", 0, 3.6),
    Sketcher.Constraint("DistanceX", -1, 1, 0, 3, 58.171927),
    Sketcher.Constraint("DistanceY", 0, 3, -1, 1, 34.640573),
])
pocket19 = body.newObject("PartDesign::Pocket", "Pocket018")
pocket19.Profile = sketch20
pocket19.Type = "UpToFirst"
pocket19.Reversed = True

sketch21 = body.newObject("Sketcher::SketchObject", "Sketch020")
sketch21.AttachmentSupport = (doc.getObject("XZ_Plane"), [""])
sketch21.MapMode = "FlatFace"
sketch21.AttachmentOffset = App.Placement(V(0, 0, -6.35), App.Rotation())
sketch21.addGeometry(Part.Circle(V(78.7, -55.1, 0), V(0, 0, 1), 1.8), False)
sketch21.addConstraint([
    Sketcher.Constraint("Diameter", 0, 3.6),
    Sketcher.Constraint("DistanceX", -1, 1, 0, 3, 78.671927),
    Sketcher.Constraint("DistanceY", 0, 3, -1, 1, 55.140573),
])
pocket20 = body.newObject("PartDesign::Pocket", "Pocket019")
pocket20.Profile = sketch21
pocket20.Type = "UpToFirst"
pocket20.Reversed = True

sketch22 = body.newObject("Sketcher::SketchObject", "Sketch021")
sketch22.AttachmentSupport = (doc.getObject("XZ_Plane"), [""])
sketch22.MapMode = "FlatFace"
sketch22.AttachmentOffset = App.Placement(V(0, 0, -6.35), App.Rotation())
sketch22.addGeometry(Part.Circle(V(78.7, -133.1, 0), V(0, 0, 1), 1.8), False)
sketch22.addConstraint([
    Sketcher.Constraint("Diameter", 0, 3.6),
    Sketcher.Constraint("DistanceX", -1, 1, 0, 3, 78.671927),
    Sketcher.Constraint("DistanceY", 0, 3, -1, 1, 133.090573),
])
pocket21 = body.newObject("PartDesign::Pocket", "Pocket020")
pocket21.Profile = sketch22
pocket21.Type = "UpToFirst"
pocket21.Reversed = True

sketch23 = body.newObject("Sketcher::SketchObject", "Sketch022")
sketch23.AttachmentSupport = (doc.getObject("XZ_Plane"), [""])
sketch23.MapMode = "FlatFace"
sketch23.AttachmentOffset = App.Placement(V(0, 0, -6.35), App.Rotation())
sketch23.addGeometry(Part.Circle(V(58.2, -153.6, 0), V(0, 0, 1), 1.8), False)
sketch23.addConstraint([
    Sketcher.Constraint("Diameter", 0, 3.6),
    Sketcher.Constraint("DistanceX", -1, 1, 0, 3, 58.171927),
    Sketcher.Constraint("DistanceY", 0, 3, -1, 1, 153.590573),
])
pocket22 = body.newObject("PartDesign::Pocket", "Pocket021")
pocket22.Profile = sketch23
pocket22.Type = "UpToFirst"
pocket22.Reversed = True

sketch24 = body.newObject("Sketcher::SketchObject", "Sketch023")
sketch24.AttachmentSupport = (doc.getObject("XZ_Plane"), [""])
sketch24.MapMode = "FlatFace"
sketch24.AttachmentOffset = App.Placement(V(0, 0, -6.35), App.Rotation())
sketch24.addGeometry(Part.Circle(V(3.9, -154, 0), V(0, 0, 1), 1.8), False)
sketch24.addConstraint([
    Sketcher.Constraint("Diameter", 0, 3.6),
    Sketcher.Constraint("DistanceY", 0, 3, -1, 1, 154.0),
    Sketcher.Constraint("DistanceX", -1, 1, 0, 3, 3.8875),
])
pocket23 = body.newObject("PartDesign::Pocket", "Pocket022")
pocket23.Profile = sketch24
pocket23.Type = "UpToFirst"
pocket23.Reversed = True

sketch25 = body.newObject("Sketcher::SketchObject", "Sketch024")
sketch25.AttachmentSupport = (doc.getObject("XZ_Plane"), [""])
sketch25.MapMode = "FlatFace"
sketch25.AttachmentOffset = App.Placement(V(0, 0, -6.35), App.Rotation())
sketch25.addGeometry(Part.Circle(V(-26.1, -154, 0), V(0, 0, 1), 1.8), False)
sketch25.addConstraint([
    Sketcher.Constraint("Diameter", 0, 3.6),
    Sketcher.Constraint("DistanceY", 0, 3, -1, 1, 154.0),
    Sketcher.Constraint("DistanceX", 0, 3, -1, 1, 26.1125),
])
pocket24 = body.newObject("PartDesign::Pocket", "Pocket023")
pocket24.Profile = sketch25
pocket24.Type = "UpToFirst"
pocket24.Reversed = True

sketch26 = body.newObject("Sketcher::SketchObject", "Sketch025")
sketch26.AttachmentSupport = (doc.getObject("XZ_Plane"), [""])
sketch26.MapMode = "FlatFace"
sketch26.AttachmentOffset = App.Placement(V(0, 0, -6.35), App.Rotation())
sketch26.addGeometry(Part.Circle(V(-58.2, -153.6, 0), V(0, 0, 1), 1.8), False)
sketch26.addConstraint([
    Sketcher.Constraint("Diameter", 0, 3.6),
    Sketcher.Constraint("DistanceX", 0, 3, -1, 1, 58.171927),
    Sketcher.Constraint("DistanceY", 0, 3, -1, 1, 153.590573),
])
pocket25 = body.newObject("PartDesign::Pocket", "Pocket024")
pocket25.Profile = sketch26
pocket25.Type = "UpToFirst"
pocket25.Reversed = True

sketch27 = body.newObject("Sketcher::SketchObject", "Sketch026")
sketch27.AttachmentSupport = (doc.getObject("XZ_Plane"), [""])
sketch27.MapMode = "FlatFace"
sketch27.AttachmentOffset = App.Placement(V(0, 0, -6.35), App.Rotation())
sketch27.addGeometry(Part.Circle(V(-78.7, -133.1, 0), V(0, 0, 1), 1.8), False)
sketch27.addConstraint([
    Sketcher.Constraint("Diameter", 0, 3.6),
    Sketcher.Constraint("DistanceX", 0, 3, -1, 1, 78.671927),
    Sketcher.Constraint("DistanceY", 0, 3, -1, 1, 133.090573),
])
pocket26 = body.newObject("PartDesign::Pocket", "Pocket025")
pocket26.Profile = sketch27
pocket26.Type = "UpToFirst"
pocket26.Reversed = True

doc.recompute()
